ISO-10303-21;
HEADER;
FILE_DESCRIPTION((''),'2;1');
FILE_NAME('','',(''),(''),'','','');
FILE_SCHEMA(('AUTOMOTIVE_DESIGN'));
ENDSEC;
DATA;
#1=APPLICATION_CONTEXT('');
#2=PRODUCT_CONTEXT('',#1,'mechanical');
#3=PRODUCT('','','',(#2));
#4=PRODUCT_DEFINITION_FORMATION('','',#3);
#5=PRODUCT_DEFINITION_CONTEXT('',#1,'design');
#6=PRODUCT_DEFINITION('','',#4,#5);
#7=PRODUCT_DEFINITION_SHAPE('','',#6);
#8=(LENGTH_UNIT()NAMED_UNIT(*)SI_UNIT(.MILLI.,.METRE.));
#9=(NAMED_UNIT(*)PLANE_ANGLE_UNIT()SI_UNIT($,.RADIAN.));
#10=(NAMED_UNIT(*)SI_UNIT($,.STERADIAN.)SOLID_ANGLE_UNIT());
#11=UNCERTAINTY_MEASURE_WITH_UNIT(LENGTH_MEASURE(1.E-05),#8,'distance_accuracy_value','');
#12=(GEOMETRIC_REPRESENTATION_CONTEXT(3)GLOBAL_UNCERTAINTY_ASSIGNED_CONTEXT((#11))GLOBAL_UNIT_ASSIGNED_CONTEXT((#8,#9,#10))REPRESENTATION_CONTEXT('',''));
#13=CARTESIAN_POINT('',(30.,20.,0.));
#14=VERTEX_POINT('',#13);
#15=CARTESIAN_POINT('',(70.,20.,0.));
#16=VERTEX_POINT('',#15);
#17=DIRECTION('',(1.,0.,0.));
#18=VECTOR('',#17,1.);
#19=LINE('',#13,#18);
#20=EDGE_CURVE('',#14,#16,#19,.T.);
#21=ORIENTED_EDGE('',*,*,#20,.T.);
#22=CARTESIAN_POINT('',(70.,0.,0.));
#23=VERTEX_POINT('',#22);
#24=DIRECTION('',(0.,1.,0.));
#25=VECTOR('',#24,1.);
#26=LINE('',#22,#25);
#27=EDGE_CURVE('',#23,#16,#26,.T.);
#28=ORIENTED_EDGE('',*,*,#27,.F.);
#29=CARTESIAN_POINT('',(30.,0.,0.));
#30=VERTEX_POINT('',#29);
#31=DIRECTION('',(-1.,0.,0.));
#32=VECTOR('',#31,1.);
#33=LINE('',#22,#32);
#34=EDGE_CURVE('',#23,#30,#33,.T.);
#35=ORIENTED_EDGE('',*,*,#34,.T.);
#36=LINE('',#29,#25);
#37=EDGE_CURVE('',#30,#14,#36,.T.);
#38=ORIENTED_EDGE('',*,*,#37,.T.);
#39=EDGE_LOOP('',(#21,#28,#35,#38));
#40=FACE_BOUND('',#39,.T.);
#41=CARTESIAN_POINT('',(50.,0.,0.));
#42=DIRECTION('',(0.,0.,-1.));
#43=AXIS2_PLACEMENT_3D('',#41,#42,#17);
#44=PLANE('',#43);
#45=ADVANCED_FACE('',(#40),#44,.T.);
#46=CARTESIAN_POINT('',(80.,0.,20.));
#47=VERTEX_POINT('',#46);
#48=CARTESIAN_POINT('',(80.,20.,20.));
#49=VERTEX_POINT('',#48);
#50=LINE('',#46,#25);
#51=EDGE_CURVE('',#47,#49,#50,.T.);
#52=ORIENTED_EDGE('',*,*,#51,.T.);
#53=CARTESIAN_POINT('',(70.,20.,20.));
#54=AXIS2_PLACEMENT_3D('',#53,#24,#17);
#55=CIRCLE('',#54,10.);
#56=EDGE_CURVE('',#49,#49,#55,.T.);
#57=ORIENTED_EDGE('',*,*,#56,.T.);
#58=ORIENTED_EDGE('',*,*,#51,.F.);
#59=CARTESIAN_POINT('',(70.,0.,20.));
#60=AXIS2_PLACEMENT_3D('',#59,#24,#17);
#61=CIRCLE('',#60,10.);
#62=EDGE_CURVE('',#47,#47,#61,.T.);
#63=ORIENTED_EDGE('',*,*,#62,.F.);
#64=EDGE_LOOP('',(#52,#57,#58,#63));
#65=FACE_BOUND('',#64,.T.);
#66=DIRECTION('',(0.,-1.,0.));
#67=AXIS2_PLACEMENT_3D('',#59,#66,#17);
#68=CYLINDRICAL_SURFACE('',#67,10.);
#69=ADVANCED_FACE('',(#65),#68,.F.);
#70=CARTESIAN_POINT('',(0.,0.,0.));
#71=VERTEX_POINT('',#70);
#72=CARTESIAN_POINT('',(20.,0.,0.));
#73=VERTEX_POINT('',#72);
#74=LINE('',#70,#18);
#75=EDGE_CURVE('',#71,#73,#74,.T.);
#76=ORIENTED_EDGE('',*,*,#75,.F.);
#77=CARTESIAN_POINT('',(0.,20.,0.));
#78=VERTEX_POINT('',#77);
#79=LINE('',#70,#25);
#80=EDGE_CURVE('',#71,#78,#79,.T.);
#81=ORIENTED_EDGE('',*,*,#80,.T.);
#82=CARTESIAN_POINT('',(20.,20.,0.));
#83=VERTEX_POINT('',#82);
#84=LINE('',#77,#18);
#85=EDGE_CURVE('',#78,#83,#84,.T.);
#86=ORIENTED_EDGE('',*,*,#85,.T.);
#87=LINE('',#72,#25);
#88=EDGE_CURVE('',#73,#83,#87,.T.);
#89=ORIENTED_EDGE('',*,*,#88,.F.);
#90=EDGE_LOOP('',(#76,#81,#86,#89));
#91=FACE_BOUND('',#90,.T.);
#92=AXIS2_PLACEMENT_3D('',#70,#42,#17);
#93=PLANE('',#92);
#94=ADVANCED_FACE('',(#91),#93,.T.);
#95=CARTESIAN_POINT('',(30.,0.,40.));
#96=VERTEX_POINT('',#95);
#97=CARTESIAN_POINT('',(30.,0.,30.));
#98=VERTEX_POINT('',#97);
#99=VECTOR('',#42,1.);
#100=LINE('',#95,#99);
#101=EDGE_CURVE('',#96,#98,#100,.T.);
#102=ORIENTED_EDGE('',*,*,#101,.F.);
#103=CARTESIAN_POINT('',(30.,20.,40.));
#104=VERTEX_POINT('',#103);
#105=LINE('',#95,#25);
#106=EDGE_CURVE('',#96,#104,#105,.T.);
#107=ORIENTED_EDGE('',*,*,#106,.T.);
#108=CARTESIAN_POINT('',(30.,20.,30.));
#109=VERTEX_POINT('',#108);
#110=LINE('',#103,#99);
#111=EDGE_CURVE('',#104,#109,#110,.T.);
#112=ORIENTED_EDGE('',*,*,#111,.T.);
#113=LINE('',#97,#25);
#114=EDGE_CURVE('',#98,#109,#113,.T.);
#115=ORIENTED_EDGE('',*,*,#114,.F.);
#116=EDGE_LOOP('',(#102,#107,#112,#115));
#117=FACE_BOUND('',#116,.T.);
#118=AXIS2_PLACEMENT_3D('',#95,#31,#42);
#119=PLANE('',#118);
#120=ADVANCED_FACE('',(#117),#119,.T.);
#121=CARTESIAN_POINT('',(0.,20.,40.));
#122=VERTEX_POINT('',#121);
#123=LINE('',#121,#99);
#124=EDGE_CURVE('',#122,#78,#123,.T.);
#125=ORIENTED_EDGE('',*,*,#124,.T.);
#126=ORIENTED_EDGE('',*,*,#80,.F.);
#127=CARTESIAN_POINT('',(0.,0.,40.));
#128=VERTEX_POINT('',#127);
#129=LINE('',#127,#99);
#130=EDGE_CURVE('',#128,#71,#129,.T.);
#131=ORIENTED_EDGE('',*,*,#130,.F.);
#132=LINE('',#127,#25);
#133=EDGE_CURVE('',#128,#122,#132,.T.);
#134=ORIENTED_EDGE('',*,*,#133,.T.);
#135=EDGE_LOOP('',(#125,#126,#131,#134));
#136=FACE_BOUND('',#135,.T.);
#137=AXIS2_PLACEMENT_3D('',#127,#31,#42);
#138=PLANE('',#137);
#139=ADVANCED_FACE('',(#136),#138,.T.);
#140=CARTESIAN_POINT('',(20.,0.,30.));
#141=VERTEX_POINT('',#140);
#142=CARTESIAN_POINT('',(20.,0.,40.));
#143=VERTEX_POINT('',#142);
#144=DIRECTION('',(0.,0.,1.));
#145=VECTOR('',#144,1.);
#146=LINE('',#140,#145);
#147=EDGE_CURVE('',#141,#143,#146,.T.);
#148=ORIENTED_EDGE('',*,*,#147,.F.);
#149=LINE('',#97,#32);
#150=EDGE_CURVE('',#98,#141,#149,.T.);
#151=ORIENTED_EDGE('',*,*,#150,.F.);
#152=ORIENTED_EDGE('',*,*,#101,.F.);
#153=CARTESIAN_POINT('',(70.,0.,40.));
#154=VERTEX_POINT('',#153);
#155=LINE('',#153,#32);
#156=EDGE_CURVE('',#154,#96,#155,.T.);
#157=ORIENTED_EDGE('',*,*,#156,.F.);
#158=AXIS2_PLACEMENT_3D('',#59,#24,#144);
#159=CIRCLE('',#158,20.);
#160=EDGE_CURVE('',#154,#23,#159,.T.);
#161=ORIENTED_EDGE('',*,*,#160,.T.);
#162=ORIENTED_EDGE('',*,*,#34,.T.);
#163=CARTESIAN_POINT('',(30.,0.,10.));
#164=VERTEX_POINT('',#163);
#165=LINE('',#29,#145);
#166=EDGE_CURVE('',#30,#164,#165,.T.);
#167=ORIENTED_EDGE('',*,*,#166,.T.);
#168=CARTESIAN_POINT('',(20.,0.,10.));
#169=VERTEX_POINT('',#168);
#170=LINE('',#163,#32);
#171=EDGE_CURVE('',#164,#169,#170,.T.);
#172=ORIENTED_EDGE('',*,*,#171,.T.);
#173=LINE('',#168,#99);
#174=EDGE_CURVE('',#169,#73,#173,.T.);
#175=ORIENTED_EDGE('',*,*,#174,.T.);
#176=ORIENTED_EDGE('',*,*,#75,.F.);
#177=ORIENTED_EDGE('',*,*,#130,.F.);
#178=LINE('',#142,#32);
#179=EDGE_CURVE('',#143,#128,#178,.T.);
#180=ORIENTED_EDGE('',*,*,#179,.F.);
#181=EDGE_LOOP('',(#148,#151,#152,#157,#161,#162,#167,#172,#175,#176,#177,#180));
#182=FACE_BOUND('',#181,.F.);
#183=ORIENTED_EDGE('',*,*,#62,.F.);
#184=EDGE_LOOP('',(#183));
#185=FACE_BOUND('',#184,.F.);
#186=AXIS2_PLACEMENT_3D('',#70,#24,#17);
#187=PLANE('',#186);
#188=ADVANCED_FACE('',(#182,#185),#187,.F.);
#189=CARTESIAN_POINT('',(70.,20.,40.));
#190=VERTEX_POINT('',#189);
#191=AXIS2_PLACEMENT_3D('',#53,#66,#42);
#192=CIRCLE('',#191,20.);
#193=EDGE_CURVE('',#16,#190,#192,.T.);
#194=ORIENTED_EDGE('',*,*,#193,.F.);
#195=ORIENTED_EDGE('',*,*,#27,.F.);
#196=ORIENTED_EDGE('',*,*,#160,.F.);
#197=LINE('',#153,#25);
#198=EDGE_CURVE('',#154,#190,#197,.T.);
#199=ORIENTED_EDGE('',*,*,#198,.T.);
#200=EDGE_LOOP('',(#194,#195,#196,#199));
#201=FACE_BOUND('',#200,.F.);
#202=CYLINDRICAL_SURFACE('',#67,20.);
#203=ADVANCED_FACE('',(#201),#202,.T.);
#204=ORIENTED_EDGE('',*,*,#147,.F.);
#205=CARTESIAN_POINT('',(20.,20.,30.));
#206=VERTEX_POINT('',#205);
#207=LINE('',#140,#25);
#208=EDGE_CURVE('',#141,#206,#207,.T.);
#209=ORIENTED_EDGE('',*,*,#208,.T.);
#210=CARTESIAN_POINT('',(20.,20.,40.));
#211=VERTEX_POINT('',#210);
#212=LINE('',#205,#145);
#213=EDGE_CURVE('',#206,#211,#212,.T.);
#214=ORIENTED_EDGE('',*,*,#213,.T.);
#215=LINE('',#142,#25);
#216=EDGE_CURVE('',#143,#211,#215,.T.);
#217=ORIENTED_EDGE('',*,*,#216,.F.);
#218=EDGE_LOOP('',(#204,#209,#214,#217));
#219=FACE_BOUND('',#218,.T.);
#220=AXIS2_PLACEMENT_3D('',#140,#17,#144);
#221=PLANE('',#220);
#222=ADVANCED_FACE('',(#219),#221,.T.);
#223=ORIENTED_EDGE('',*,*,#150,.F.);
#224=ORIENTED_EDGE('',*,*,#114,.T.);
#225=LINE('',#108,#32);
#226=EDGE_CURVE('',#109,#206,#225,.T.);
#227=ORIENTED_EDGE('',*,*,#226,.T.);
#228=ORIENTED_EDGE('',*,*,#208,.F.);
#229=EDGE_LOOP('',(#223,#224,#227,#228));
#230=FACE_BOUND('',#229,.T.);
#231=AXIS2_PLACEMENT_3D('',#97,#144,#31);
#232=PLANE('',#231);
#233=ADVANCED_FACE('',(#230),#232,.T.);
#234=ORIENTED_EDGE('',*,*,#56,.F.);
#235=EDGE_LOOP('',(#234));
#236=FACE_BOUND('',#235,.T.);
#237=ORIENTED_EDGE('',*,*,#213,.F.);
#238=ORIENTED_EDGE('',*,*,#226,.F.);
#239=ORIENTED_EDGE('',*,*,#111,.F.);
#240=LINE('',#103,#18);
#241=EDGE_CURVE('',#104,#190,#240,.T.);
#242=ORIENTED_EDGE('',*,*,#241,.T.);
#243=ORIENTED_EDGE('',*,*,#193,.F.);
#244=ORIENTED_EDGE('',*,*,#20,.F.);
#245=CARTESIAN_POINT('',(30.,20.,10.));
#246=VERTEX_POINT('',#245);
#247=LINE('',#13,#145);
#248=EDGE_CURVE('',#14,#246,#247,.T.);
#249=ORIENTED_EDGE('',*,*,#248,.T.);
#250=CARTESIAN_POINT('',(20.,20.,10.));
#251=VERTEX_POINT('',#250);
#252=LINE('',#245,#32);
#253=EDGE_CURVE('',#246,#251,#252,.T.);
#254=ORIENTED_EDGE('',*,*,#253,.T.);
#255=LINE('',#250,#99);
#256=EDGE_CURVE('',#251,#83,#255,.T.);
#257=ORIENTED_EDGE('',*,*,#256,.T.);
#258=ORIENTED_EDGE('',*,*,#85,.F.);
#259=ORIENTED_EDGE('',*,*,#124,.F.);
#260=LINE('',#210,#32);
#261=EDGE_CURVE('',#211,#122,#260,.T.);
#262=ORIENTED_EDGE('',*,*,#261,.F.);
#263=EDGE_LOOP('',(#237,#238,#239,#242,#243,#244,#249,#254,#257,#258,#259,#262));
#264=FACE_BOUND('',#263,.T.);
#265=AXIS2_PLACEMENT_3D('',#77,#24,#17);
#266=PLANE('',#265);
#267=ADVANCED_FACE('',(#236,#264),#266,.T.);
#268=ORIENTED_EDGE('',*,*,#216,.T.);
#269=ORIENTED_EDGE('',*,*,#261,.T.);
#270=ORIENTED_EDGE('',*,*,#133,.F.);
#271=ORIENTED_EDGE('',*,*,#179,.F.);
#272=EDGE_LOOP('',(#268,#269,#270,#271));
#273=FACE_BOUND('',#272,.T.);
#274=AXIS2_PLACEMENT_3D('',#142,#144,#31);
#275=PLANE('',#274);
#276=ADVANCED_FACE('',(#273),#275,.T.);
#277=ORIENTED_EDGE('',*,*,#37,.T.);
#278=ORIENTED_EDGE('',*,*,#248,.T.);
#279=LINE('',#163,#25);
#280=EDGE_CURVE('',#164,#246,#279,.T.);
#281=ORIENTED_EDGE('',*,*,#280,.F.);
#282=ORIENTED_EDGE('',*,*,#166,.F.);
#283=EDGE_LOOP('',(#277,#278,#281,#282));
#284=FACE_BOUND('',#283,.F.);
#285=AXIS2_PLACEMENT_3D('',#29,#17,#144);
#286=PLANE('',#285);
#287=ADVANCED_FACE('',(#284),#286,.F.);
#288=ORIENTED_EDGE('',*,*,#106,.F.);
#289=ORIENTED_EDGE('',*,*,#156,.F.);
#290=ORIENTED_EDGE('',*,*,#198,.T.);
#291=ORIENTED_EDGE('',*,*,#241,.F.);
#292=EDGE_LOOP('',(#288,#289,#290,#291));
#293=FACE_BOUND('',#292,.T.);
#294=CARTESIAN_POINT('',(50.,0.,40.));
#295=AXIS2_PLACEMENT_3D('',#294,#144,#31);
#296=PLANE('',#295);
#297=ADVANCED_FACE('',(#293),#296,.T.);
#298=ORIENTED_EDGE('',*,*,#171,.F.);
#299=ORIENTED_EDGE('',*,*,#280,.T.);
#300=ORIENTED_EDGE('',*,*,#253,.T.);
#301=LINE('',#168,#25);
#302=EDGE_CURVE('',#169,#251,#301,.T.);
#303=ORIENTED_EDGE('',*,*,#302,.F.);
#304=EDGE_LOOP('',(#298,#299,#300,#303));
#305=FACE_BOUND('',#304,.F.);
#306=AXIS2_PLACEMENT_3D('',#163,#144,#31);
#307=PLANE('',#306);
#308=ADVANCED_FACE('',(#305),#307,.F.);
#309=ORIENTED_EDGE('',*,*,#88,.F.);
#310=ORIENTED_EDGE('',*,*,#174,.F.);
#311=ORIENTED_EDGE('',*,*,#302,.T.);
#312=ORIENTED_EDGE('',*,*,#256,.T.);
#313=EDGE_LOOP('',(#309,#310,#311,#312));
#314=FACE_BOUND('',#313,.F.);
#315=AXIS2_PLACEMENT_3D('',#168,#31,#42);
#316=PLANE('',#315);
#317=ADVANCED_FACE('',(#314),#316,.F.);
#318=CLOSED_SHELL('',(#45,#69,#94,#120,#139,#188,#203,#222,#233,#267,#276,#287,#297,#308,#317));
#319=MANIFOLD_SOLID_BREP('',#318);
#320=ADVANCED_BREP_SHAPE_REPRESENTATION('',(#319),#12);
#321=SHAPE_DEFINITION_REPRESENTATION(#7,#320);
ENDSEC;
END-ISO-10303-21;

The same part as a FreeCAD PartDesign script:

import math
import FreeCAD as App
import Part
import Sketcher
from FreeCAD import Vector

doc = App.newDocument("Part")
body = doc.addObject("PartDesign::Body", "Body")

sketch1 = doc.addObject("Sketcher::SketchObject", "Sketch")
body.addObject(sketch1)
sketch1.AttachmentSupport = (doc.XZ_Plane, [""])
sketch1.MapMode = "FlatFace"
sketch1.addGeometry(Part.LineSegment(Vector(70, 0, 0), Vector(30, 0, 0)), False)
sketch1.addGeometry(Part.LineSegment(Vector(30, 0, 0), Vector(30, 10, 0)), False)
sketch1.addGeometry(Part.LineSegment(Vector(30, 10, 0), Vector(20, 10, 0)), False)
sketch1.addGeometry(Part.LineSegment(Vector(20, 10, 0), Vector(20, 0, 0)), False)
sketch1.addGeometry(Part.LineSegment(Vector(20, 0, 0), Vector(0, 0, 0)), False)
sketch1.addGeometry(Part.LineSegment(Vector(0, 0, 0), Vector(0, 40, 0)), False)
sketch1.addGeometry(Part.LineSegment(Vector(0, 40, 0), Vector(20, 40, 0)), False)
sketch1.addGeometry(Part.LineSegment(Vector(20, 40, 0), Vector(20, 30, 0)), False)
sketch1.addGeometry(Part.LineSegment(Vector(20, 30, 0), Vector(30, 30, 0)), False)
sketch1.addGeometry(Part.LineSegment(Vector(30, 30, 0), Vector(30, 40, 0)), False)
sketch1.addGeometry(Part.LineSegment(Vector(30, 40, 0), Vector(70, 40, 0)), False)
sketch1.addGeometry(Part.ArcOfCircle(Part.Circle(Vector(70, 20, 0), Vector(0, 0, 1), 20), math.radians(-90), math.radians(90)), False)
sketch1.addGeometry(Part.Circle(Vector(70, 20, 0), Vector(0, 0, 1), 10), False)
sketch1.addConstraint(Sketcher.Constraint("Coincident", 0, 2, 1, 1))
sketch1.addConstraint(Sketcher.Constraint("Coincident", 1, 2, 2, 1))
sketch1.addConstraint(Sketcher.Constraint("Coincident", 2, 2, 3, 1))
sketch1.addConstraint(Sketcher.Constraint("Coincident", 3, 2, 4, 1))
sketch1.addConstraint(Sketcher.Constraint("Coincident", 4, 2, 5, 1))
sketch1.addConstraint(Sketcher.Constraint("Coincident", 5, 2, 6, 1))
sketch1.addConstraint(Sketcher.Constraint("Coincident", 6, 2, 7, 1))
sketch1.addConstraint(Sketcher.Constraint("Coincident", 7, 2, 8, 1))
sketch1.addConstraint(Sketcher.Constraint("Coincident", 8, 2, 9, 1))
sketch1.addConstraint(Sketcher.Constraint("Coincident", 9, 2, 10, 1))
sketch1.addConstraint(Sketcher.Constraint("Tangent", 10, 2, 11, 2))
sketch1.addConstraint(Sketcher.Constraint("Tangent", 11, 1, 0, 1))
sketch1.addConstraint(Sketcher.Constraint("Horizontal", 0))
sketch1.addConstraint(Sketcher.Constraint("Vertical", 1))
sketch1.addConstraint(Sketcher.Constraint("Horizontal", 2))
sketch1.addConstraint(Sketcher.Constraint("Vertical", 3))
sketch1.addConstraint(Sketcher.Constraint("Horizontal", 4))
sketch1.addConstraint(Sketcher.Constraint("Vertical", 5))
sketch1.addConstraint(Sketcher.Constraint("Horizontal", 6))
sketch1.addConstraint(Sketcher.Constraint("Vertical", 7))
sketch1.addConstraint(Sketcher.Constraint("Horizontal", 8))
sketch1.addConstraint(Sketcher.Constraint("Vertical", 9))
sketch1.addConstraint(Sketcher.Constraint("Horizontal", 10))
sketch1.addConstraint(Sketcher.Constraint("Coincident", 4, 2, -1, 1))
sketch1.addConstraint(Sketcher.Constraint("Coincident", 12, 3, 11, 3))
sketch1.addConstraint(Sketcher.Constraint("PointOnObject", 0, 2, -1))
sketch1.addConstraint(Sketcher.Constraint("Horizontal", 6, 2, 9, 2))
sketch1.addConstraint(Sketcher.Constraint("Vertical", 3, 2, 6, 2))
sketch1.addConstraint(Sketcher.Constraint("Vertical", 1, 2, 8, 2))
sketch1.addConstraint(Sketcher.Constraint("Equal", 8, 1))
sketch1.addConstraint(Sketcher.Constraint("Equal", 10, 5))
sketch1.addConstraint(Sketcher.Constraint("Equal", 3, 7))
sketch1.addConstraint(Sketcher.Constraint("Diameter", 12, 20.0))
sketch1.addConstraint(Sketcher.Constraint("Radius", 11, 20.0))
sketch1.addConstraint(Sketcher.Constraint("DistanceX", 2, 2, 2, 1, 10.0))
sketch1.addConstraint(Sketcher.Constraint("DistanceX", 4, 2, 4, 1, 20.0))
pad1 = doc.addObject("PartDesign::Pad", "Pad")
body.addObject(pad1)
pad1.Profile = sketch1
pad1.Length = 20
pad1.Reversed = True

doc.recompute()
